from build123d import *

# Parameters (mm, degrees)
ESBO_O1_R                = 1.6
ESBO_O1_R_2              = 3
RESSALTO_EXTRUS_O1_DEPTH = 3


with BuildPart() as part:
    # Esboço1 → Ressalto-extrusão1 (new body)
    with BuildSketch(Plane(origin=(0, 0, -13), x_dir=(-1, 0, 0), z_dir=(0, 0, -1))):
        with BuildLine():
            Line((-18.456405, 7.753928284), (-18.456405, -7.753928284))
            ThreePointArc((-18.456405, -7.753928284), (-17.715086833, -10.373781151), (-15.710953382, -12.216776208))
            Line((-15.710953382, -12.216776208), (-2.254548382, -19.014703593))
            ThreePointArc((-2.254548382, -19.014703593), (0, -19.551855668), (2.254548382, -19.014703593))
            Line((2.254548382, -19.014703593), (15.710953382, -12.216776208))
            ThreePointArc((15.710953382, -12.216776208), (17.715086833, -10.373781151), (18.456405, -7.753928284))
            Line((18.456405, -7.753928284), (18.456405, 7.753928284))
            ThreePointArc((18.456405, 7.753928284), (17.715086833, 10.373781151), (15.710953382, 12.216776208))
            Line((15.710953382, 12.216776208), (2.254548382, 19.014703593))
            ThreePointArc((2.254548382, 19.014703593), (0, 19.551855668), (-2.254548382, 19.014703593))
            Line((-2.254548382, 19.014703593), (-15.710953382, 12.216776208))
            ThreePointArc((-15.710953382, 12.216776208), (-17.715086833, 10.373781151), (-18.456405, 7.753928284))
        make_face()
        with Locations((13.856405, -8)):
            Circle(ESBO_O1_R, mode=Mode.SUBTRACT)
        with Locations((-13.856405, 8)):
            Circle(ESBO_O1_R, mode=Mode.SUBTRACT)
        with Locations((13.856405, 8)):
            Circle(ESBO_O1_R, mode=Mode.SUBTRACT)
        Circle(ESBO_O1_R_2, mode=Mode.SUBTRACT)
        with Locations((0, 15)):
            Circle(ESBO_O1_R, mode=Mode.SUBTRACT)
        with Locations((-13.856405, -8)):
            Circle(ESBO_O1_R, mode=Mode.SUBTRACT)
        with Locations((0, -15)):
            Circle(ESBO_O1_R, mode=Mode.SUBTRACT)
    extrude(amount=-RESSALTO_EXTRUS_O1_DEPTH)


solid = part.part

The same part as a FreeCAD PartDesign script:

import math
import FreeCAD as App
import Part
import Sketcher
from FreeCAD import Vector

doc = App.newDocument("Part")
body = doc.addObject("PartDesign::Body", "Body")

sketch1 = doc.addObject("Sketcher::SketchObject", "Sketch")
body.addObject(sketch1)
sketch1.AttachmentSupport = (doc.XY_Plane, [""])
sketch1.MapMode = "FlatFace"
sketch1.AttachmentOffset = App.Placement(Vector(0, 0, -13), App.Rotation())
sketch1.addGeometry(Part.LineSegment(Vector(18.456405, 7.753928, 0), Vector(18.456405, -7.753928, 0)), False)
sketch1.addGeometry(Part.ArcOfCircle(Part.Circle(Vector(13.456405, -7.753928, 0), Vector(0, 0, 1), 5), math.radians(-63.197937), math.radians(0)), False)
sketch1.addGeometry(Part.LineSegment(Vector(15.710953, -12.216776, 0), Vector(2.254548, -19.014704, 0)), False)
sketch1.addGeometry(Part.ArcOfCircle(Part.Circle(Vector(0, -14.551856, 0), Vector(0, 0, 1), 5), math.radians(-116.802063), math.radians(-63.197937)), False)
sketch1.addGeometry(Part.LineSegment(Vector(-2.254548, -19.014704, 0), Vector(-15.710953, -12.216776, 0)), False)
sketch1.addGeometry(Part.ArcOfCircle(Part.Circle(Vector(-13.456405, -7.753928, 0), Vector(0, 0, 1), 5), math.radians(180), math.radians(243.197937)), False)
sketch1.addGeometry(Part.LineSegment(Vector(-18.456405, -7.753928, 0), Vector(-18.456405, 7.753928, 0)), False)
sketch1.addGeometry(Part.ArcOfCircle(Part.Circle(Vector(-13.456405, 7.753928, 0), Vector(0, 0, 1), 5), math.radians(116.802063), math.radians(180)), False)
sketch1.addGeometry(Part.LineSegment(Vector(-15.710953, 12.216776, 0), Vector(-2.254548, 19.014704, 0)), False)
sketch1.addGeometry(Part.ArcOfCircle(Part.Circle(Vector(0, 14.551856, 0), Vector(0, 0, 1), 5), math.radians(63.197937), math.radians(116.802063)), False)
sketch1.addGeometry(Part.LineSegment(Vector(2.254548, 19.014704, 0), Vector(15.710953, 12.216776, 0)), False)
sketch1.addGeometry(Part.ArcOfCircle(Part.Circle(Vector(13.456405, 7.753928, 0), Vector(0, 0, 1), 5), math.radians(0), math.radians(63.197937)), False)
sketch1.addGeometry(Part.Circle(Vector(13.856405, -8, 0), Vector(0, 0, 1), 1.6), False)
sketch1.addGeometry(Part.Circle(Vector(0, -15, 0), Vector(0, 0, 1), 1.6), False)
sketch1.addGeometry(Part.Circle(Vector(-13.856405, -8, 0), Vector(0, 0, 1), 1.6), False)
sketch1.addGeometry(Part.Circle(Vector(13.856405, 8, 0), Vector(0, 0, 1), 1.6), False)
sketch1.addGeometry(Part.Circle(Vector(0, 0, 0), Vector(0, 0, 1), 3), False)
sketch1.addGeometry(Part.Circle(Vector(-13.856405, 8, 0), Vector(0, 0, 1), 1.6), False)
sketch1.addGeometry(Part.Circle(Vector(0, 15, 0), Vector(0, 0, 1), 1.6), False)
sketch1.addConstraint(Sketcher.Constraint("Tangent", 0, 2, 1, 2))
sketch1.addConstraint(Sketcher.Constraint("Tangent", 1, 1, 2, 1))
sketch1.addConstraint(Sketcher.Constraint("Tangent", 2, 2, 3, 2))
sketch1.addConstraint(Sketcher.Constraint("Tangent", 3, 1, 4, 1))
sketch1.addConstraint(Sketcher.Constraint("Tangent", 4, 2, 5, 2))
sketch1.addConstraint(Sketcher.Constraint("Tangent", 5, 1, 6, 1))
sketch1.addConstraint(Sketcher.Constraint("Tangent", 6, 2, 7, 2))
sketch1.addConstraint(Sketcher.Constraint("Tangent", 7, 1, 8, 1))
sketch1.addConstraint(Sketcher.Constraint("Tangent", 8, 2, 9, 2))
sketch1.addConstraint(Sketcher.Constraint("Tangent", 9, 1, 10, 1))
sketch1.addConstraint(Sketcher.Constraint("Tangent", 10, 2, 11, 2))
sketch1.addConstraint(Sketcher.Constraint("Tangent", 11, 1, 0, 1))
sketch1.addConstraint(Sketcher.Constraint("Vertical", 0))
sketch1.addConstraint(Sketcher.Constraint("Vertical", 6))
sketch1.addConstraint(Sketcher.Constraint("Coincident", 16, 3, -1, 1))
sketch1.addConstraint(Sketcher.Constraint("Equal", 1, 3))
sketch1.addConstraint(Sketcher.Constraint("Equal", 3, 5))
sketch1.addConstraint(Sketcher.Constraint("Equal", 5, 7))
sketch1.addConstraint(Sketcher.Constraint("Equal", 7, 9))
sketch1.addConstraint(Sketcher.Constraint("Equal", 9, 11))
sketch1.addConstraint(Sketcher.Constraint("Equal", 12, 13))
sketch1.addConstraint(Sketcher.Constraint("Equal", 13, 14))
sketch1.addConstraint(Sketcher.Constraint("Equal", 14, 15))
sketch1.addConstraint(Sketcher.Constraint("Equal", 15, 17))
sketch1.addConstraint(Sketcher.Constraint("Equal", 17, 18))
sketch1.addConstraint(Sketcher.Constraint("Symmetric", 1, 3, 7, 3, -1, 1))
sketch1.addConstraint(Sketcher.Constraint("Symmetric", 3, 3, 9, 3, -1, 1))
sketch1.addConstraint(Sketcher.Constraint("Symmetric", 14, 3, 15, 3, -1, 1))
sketch1.addConstraint(Sketcher.Constraint("Symmetric", 12, 3, 17, 3, -1, 1))
sketch1.addConstraint(Sketcher.Constraint("Symmetric", 13, 3, 18, 3, -1, 1))
sketch1.addConstraint(Sketcher.Constraint("Symmetric", 12, 3, 14, 3, -2))
sketch1.addConstraint(Sketcher.Constraint("Symmetric", 2, 2, 3, 1, -2))
sketch1.addConstraint(Sketcher.Constraint("PointOnObject", 13, 3, -2))
sketch1.addConstraint(Sketcher.Constraint("Parallel", 4, 10))
sketch1.addConstraint(Sketcher.Constraint("Diameter", 16, 6.0))
sketch1.addConstraint(Sketcher.Constraint("Radius", 1, 5.0))
sketch1.addConstraint(Sketcher.Constraint("Diameter", 12, 3.2))
sketch1.addConstraint(Sketcher.Constraint("DistanceY", 12, 3, -1, 1, 8.0))
sketch1.addConstraint(Sketcher.Constraint("DistanceY", 13, 3, -1, 1, 15.0))
sketch1.addConstraint(Sketcher.Constraint("DistanceX", 1, 3, 12, 3, 0.4))
sketch1.addConstraint(Sketcher.Constraint("Distance", 2, 15.076029))
sketch1.addConstraint(Sketcher.Constraint("DistanceY", 0, 2, 0, 1, 15.507857))
sketch1.addConstraint(Sketcher.Constraint("DistanceX", -1, 1, 2, 2, 2.254548))
pad1 = doc.addObject("PartDesign::Pad", "Pad")
body.addObject(pad1)
pad1.Profile = sketch1
pad1.Length = 3

doc.recompute()
